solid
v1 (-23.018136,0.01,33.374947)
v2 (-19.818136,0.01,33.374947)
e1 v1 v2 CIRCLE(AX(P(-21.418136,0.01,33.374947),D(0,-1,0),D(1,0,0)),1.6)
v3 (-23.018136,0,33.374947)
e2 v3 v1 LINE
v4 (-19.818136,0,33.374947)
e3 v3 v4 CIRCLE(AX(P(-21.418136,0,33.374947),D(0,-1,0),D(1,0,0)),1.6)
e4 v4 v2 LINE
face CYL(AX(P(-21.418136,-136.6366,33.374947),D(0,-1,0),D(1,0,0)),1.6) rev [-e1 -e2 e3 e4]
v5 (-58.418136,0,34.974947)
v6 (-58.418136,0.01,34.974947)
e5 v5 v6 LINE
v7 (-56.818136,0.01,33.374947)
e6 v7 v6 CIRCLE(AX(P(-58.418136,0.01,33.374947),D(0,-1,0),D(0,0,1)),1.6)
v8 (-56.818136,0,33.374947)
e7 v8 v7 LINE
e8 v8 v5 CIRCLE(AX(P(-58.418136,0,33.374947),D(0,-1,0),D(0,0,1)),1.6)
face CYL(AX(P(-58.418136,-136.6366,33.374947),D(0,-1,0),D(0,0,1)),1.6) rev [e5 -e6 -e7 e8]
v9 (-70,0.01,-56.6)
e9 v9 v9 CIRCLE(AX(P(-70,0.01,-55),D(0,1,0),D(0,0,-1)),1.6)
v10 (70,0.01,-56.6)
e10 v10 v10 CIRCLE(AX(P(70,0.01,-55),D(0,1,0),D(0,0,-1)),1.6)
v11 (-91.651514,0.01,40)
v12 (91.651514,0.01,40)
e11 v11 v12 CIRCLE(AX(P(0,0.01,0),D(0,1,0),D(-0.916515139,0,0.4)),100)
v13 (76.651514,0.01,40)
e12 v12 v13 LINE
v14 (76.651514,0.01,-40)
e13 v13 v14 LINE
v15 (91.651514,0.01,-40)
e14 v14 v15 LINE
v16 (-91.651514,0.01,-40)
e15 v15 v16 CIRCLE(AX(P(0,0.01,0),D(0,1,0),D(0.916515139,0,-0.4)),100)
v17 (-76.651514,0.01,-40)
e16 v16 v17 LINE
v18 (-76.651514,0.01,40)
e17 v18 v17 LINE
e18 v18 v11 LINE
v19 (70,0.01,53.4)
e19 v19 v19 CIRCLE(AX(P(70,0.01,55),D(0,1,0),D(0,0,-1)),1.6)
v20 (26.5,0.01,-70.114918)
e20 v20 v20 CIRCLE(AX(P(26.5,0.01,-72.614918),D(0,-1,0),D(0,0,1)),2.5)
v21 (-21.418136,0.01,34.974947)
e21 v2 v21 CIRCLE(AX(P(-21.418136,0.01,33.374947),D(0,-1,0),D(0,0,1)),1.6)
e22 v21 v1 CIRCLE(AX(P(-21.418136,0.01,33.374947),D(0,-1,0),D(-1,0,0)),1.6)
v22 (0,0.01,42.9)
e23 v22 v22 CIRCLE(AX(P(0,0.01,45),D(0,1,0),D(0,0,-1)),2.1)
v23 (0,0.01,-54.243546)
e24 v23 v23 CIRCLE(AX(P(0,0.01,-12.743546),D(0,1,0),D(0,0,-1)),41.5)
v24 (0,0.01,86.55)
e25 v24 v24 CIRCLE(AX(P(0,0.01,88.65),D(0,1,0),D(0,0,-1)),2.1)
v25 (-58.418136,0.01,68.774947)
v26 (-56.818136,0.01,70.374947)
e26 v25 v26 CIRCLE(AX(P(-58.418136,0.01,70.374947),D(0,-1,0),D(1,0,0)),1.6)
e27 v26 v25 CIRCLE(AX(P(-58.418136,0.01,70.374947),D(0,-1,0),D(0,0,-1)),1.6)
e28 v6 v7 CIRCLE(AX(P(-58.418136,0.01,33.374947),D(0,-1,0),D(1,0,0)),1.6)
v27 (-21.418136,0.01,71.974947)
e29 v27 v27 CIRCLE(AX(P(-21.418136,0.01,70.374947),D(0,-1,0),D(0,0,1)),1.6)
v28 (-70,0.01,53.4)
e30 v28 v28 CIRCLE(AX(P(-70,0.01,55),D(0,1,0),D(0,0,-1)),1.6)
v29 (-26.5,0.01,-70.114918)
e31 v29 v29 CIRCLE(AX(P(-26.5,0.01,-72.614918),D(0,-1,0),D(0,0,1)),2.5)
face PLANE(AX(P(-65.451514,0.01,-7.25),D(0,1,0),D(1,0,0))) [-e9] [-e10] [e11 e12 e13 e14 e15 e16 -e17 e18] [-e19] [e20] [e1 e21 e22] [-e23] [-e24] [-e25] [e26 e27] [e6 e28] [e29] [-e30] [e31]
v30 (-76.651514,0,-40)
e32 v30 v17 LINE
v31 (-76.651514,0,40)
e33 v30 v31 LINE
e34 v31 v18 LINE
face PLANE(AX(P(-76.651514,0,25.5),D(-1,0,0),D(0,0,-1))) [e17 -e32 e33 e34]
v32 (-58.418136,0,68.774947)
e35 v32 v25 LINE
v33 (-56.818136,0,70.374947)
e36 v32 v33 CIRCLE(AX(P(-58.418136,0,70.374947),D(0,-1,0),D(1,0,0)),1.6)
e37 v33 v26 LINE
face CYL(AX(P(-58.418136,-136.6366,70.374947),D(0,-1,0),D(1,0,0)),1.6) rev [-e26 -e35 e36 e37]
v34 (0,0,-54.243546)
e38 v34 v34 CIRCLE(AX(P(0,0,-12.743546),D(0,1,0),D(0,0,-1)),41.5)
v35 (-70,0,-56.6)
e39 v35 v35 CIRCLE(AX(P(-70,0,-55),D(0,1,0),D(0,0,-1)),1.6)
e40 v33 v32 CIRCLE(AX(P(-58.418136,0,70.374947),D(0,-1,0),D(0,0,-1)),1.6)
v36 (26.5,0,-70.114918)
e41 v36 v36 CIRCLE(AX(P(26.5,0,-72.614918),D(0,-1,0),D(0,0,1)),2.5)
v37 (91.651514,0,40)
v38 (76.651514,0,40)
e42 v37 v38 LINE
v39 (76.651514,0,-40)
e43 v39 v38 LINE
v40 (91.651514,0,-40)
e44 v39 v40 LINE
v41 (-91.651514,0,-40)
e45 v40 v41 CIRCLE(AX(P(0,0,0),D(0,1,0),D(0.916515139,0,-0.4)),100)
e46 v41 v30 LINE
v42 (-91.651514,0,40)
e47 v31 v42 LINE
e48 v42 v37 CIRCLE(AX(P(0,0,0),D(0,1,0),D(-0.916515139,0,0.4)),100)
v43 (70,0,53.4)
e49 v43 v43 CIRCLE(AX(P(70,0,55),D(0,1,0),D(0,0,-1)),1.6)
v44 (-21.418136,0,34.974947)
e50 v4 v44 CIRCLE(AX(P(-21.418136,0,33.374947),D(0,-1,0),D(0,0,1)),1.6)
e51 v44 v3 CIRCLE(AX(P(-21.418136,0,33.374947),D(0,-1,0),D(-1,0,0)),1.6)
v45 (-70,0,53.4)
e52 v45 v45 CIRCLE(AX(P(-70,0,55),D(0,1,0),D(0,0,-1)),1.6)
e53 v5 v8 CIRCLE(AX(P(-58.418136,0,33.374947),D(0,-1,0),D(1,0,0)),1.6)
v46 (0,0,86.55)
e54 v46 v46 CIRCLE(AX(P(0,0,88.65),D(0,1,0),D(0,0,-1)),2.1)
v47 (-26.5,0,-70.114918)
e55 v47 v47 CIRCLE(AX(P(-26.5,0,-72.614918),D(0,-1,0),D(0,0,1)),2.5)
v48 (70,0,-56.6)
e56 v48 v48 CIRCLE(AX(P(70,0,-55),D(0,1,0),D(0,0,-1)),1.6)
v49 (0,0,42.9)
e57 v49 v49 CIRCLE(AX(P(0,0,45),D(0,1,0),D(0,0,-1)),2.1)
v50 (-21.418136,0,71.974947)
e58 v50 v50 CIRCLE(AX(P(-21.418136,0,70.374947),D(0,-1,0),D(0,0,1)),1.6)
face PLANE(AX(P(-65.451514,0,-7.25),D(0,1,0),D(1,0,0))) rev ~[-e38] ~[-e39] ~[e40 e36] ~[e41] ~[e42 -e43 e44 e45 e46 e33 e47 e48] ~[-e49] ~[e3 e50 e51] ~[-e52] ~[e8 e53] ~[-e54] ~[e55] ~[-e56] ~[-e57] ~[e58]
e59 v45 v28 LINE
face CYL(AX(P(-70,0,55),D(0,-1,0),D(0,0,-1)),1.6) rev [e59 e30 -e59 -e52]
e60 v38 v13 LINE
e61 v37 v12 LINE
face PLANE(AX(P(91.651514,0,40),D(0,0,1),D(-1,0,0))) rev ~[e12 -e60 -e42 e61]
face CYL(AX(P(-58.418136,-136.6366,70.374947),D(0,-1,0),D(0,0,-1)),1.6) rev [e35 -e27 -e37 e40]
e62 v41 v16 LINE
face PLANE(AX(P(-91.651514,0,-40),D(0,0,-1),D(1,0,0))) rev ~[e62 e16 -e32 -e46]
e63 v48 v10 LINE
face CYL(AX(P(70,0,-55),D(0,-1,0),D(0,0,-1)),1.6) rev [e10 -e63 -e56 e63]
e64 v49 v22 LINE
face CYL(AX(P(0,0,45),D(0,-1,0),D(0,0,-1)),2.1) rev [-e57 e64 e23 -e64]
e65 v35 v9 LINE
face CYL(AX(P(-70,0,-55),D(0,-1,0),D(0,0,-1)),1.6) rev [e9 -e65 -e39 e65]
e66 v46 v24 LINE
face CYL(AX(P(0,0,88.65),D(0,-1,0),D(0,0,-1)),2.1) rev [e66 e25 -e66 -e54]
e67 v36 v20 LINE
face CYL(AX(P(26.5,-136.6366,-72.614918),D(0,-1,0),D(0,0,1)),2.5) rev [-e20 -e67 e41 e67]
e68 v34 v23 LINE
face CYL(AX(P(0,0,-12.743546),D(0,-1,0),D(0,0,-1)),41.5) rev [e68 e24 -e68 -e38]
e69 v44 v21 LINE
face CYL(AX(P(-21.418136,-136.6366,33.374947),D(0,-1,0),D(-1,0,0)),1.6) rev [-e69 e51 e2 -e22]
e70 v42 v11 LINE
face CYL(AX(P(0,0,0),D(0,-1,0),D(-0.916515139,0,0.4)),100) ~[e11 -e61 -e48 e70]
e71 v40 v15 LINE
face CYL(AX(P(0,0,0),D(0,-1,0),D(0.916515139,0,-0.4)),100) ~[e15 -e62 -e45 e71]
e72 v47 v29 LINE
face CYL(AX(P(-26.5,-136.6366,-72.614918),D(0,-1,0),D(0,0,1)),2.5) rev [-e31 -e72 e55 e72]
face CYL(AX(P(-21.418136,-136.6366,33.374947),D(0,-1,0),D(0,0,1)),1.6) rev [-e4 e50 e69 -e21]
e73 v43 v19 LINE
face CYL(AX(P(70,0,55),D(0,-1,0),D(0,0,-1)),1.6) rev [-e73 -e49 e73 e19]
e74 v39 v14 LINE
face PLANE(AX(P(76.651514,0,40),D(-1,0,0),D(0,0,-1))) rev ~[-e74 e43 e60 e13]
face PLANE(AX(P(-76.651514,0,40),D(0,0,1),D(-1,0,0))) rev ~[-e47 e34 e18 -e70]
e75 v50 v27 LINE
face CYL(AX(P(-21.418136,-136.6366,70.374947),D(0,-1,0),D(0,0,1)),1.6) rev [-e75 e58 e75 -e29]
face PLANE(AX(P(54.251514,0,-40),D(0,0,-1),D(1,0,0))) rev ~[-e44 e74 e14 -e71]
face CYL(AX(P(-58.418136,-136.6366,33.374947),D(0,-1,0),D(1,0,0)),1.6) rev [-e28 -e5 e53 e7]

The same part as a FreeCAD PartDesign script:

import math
import FreeCAD as App
import Part
import Sketcher
from FreeCAD import Vector
Q = App.Units.Quantity

doc = App.newDocument("Part")
params = doc.addObject("Spreadsheet::Sheet", "Params")
for row, (alias, value) in enumerate([
    ("sketch1_diameter", "83 mm"),
    ("sketch1_radius", "100 mm"),
    ("sketch1_diameter2", "3.2 mm"),
    ("sketch1_diameter3", "4.2 mm"),
    ("sketch1_width", "15 mm"),
    ("pad1_length", "0.01 mm"),
    ("sketch2_diameter", "3.2 mm"),
    ("sketch3_diameter", "5 mm"),
], start=1):
    params.set(f"A{row}", alias)
    params.set(f"B{row}", "=" + value)
    params.setAlias(f"B{row}", alias)

body = doc.addObject("PartDesign::Body", "Body")

sketch1 = body.newObject("Sketcher::SketchObject", "Sketch")
sketch1.AttachmentSupport = (doc.getObject("XZ_Plane"), [""])
sketch1.MapMode = "FlatFace"
sketch1.addGeometry(Part.LineSegment(Vector(76.7, -40, 0), Vector(91.7, -40, 0)), False)
sketch1.addGeometry(Part.ArcOfCircle(Part.Circle(Vector(0, 0, 0), Vector(0, 0, 1), 100), math.radians(-156), math.radians(-24)), False)
sketch1.addGeometry(Part.LineSegment(Vector(-91.7, -40, 0), Vector(-76.7, -40, 0)), False)
sketch1.addGeometry(Part.LineSegment(Vector(-76.7, -40, 0), Vector(-76.7, 40, 0)), False)
sketch1.addGeometry(Part.LineSegment(Vector(-76.7, 40, 0), Vector(-91.7, 40, 0)), False)
sketch1.addGeometry(Part.ArcOfCircle(Part.Circle(Vector(0, 0, 0), Vector(0, 0, 1), 100), math.radians(24), math.radians(156)), False)
sketch1.addGeometry(Part.LineSegment(Vector(91.7, 40, 0), Vector(76.7, 40, 0)), False)
sketch1.addGeometry(Part.LineSegment(Vector(76.7, 40, 0), Vector(76.7, -40, 0)), False)
sketch1.addGeometry(Part.Circle(Vector(-70, 55, 0), Vector(0, 0, 1), 1.6), False)
sketch1.addGeometry(Part.Circle(Vector(0, 88.7, 0), Vector(0, 0, 1), 2.1), False)
sketch1.addGeometry(Part.Circle(Vector(70, 55, 0), Vector(0, 0, 1), 1.6), False)
sketch1.addGeometry(Part.Circle(Vector(0, 45, 0), Vector(0, 0, 1), 2.1), False)
sketch1.addGeometry(Part.Circle(Vector(-70, -55, 0), Vector(0, 0, 1), 1.6), False)
sketch1.addGeometry(Part.Circle(Vector(0, -12.7, 0), Vector(0, 0, 1), 41.5), False)
sketch1.addGeometry(Part.Circle(Vector(70, -55, 0), Vector(0, 0, 1), 1.6), False)
sketch1.addConstraint(Sketcher.Constraint("Coincident", 0, 2, 1, 2))
sketch1.addConstraint(Sketcher.Constraint("Coincident", 1, 1, 2, 1))
sketch1.addConstraint(Sketcher.Constraint("Coincident", 2, 2, 3, 1))
sketch1.addConstraint(Sketcher.Constraint("Coincident", 3, 2, 4, 1))
sketch1.addConstraint(Sketcher.Constraint("Coincident", 4, 2, 5, 2))
sketch1.addConstraint(Sketcher.Constraint("Coincident", 5, 1, 6, 1))
sketch1.addConstraint(Sketcher.Constraint("Coincident", 6, 2, 7, 1))
sketch1.addConstraint(Sketcher.Constraint("Coincident", 7, 2, 0, 1))
sketch1.addConstraint(Sketcher.Constraint("Horizontal", 0))
sketch1.addConstraint(Sketcher.Constraint("Horizontal", 2))
sketch1.addConstraint(Sketcher.Constraint("Vertical", 3))
sketch1.addConstraint(Sketcher.Constraint("Horizontal", 4))
sketch1.addConstraint(Sketcher.Constraint("Horizontal", 6))
sketch1.addConstraint(Sketcher.Constraint("Vertical", 7))
sketch1.addConstraint(Sketcher.Constraint("Coincident", 1, 3, -1, 1))
sketch1.addConstraint(Sketcher.Constraint("Coincident", 5, 3, -1, 1))
sketch1.addConstraint(Sketcher.Constraint("Equal", 1, 5))
sketch1.addConstraint(Sketcher.Constraint("Equal", 8, 10))
sketch1.addConstraint(Sketcher.Constraint("Equal", 9, 11))
sketch1.addConstraint(Sketcher.Constraint("Equal", 10, 12))
sketch1.addConstraint(Sketcher.Constraint("Equal", 12, 14))
sketch1.addConstraint(Sketcher.Constraint("Symmetric", 10, 3, 12, 3, -1, 1))
sketch1.addConstraint(Sketcher.Constraint("Symmetric", 8, 3, 14, 3, -1, 1))
sketch1.addConstraint(Sketcher.Constraint("Symmetric", 2, 2, 6, 2, -1, 1))
sketch1.addConstraint(Sketcher.Constraint("Symmetric", 8, 3, 10, 3, -2))
sketch1.addConstraint(Sketcher.Constraint("PointOnObject", 9, 3, -2))
sketch1.addConstraint(Sketcher.Constraint("PointOnObject", 11, 3, -2))
sketch1.addConstraint(Sketcher.Constraint("PointOnObject", 13, 3, -2))
sketch1.addConstraint(Sketcher.Constraint("Horizontal", 0, 2, 1, 1))
sketch1.addConstraint(Sketcher.Constraint("Horizontal", 4, 2, 5, 1))
sketch1.addConstraint(Sketcher.Constraint("Diameter", 13, Q("83 mm")))
sketch1.addConstraint(Sketcher.Constraint("Radius", 1, Q("100 mm")))
sketch1.addConstraint(Sketcher.Constraint("Diameter", 8, Q("3.2 mm")))
sketch1.addConstraint(Sketcher.Constraint("Diameter", 9, Q("4.2 mm")))
sketch1.addConstraint(Sketcher.Constraint("DistanceX", 0, 1, 0, 2, Q("15 mm")))
sketch1.addConstraint(Sketcher.Constraint("DistanceY", 3, 1, 3, 2, Q("80 mm")))
sketch1.addConstraint(Sketcher.Constraint("DistanceX", 8, 3, -1, 1, Q("70 mm")))
sketch1.addConstraint(Sketcher.Constraint("DistanceY", -1, 1, 8, 3, Q("55 mm")))
sketch1.addConstraint(Sketcher.Constraint("DistanceY", -1, 1, 11, 3, Q("45 mm")))
sketch1.addConstraint(Sketcher.Constraint("DistanceY", -1, 1, 9, 3, Q("88.65 mm")))
sketch1.addConstraint(Sketcher.Constraint("DistanceY", 13, 3, -1, 1, Q("12.743546 mm")))
sketch1.setExpression("Constraints[30]", "Params.sketch1_diameter")
sketch1.setExpression("Constraints[31]", "Params.sketch1_radius")
sketch1.setExpression("Constraints[32]", "Params.sketch1_diameter2")
sketch1.setExpression("Constraints[33]", "Params.sketch1_diameter3")
sketch1.setExpression("Constraints[34]", "Params.sketch1_width")
pad1 = body.newObject("PartDesign::Pad", "Pad")
pad1.Profile = sketch1
pad1.setExpression("Length", "Params.pad1_length")
pad1.Reversed = True

sketch2 = body.newObject("Sketcher::SketchObject", "Sketch001")
sketch2.AttachmentSupport = (doc.getObject("XZ_Plane"), [""])
sketch2.MapMode = "FlatFace"
sketch2.AttachmentOffset = App.Placement(Vector(0, 0, -0.01), App.Rotation())
sketch2.addGeometry(Part.ArcOfCircle(Part.Circle(Vector(-58.4, 33.4, 0), Vector(0, 0, 1), 1.6), math.radians(90), math.radians(360)), False)
sketch2.addGeometry(Part.ArcOfCircle(Part.Circle(Vector(-58.4, 33.4, 0), Vector(0, 0, 1), 1.6), math.radians(0), math.radians(90)), False)
sketch2.addGeometry(Part.ArcOfCircle(Part.Circle(Vector(-21.4, 33.4, 0), Vector(0, 0, 1), 1.6), math.radians(180), math.radians(360)), False)
sketch2.addGeometry(Part.ArcOfCircle(Part.Circle(Vector(-21.4, 33.4, 0), Vector(0, 0, 1), 1.6), math.radians(90), math.radians(180)), False)
sketch2.addGeometry(Part.ArcOfCircle(Part.Circle(Vector(-21.4, 33.4, 0), Vector(0, 0, 1), 1.6), math.radians(0), math.radians(90)), False)
sketch2.addGeometry(Part.ArcOfCircle(Part.Circle(Vector(-58.4, 70.4, 0), Vector(0, 0, 1), 1.6), math.radians(-90), math.radians(0)), False)
sketch2.addGeometry(Part.ArcOfCircle(Part.Circle(Vector(-58.4, 70.4, 0), Vector(0, 0, 1), 1.6), math.radians(0), math.radians(270)), False)
sketch2.addGeometry(Part.Circle(Vector(-21.4, 70.4, 0), Vector(0, 0, 1), 1.6), False)
sketch2.addConstraint(Sketcher.Constraint("Tangent", 0, 1, 1, 2))
sketch2.addConstraint(Sketcher.Constraint("Coincident", 1, 1, 0, 2))
sketch2.addConstraint(Sketcher.Constraint("Tangent", 2, 1, 3, 2))
sketch2.addConstraint(Sketcher.Constraint("Tangent", 3, 1, 4, 2))
sketch2.addConstraint(Sketcher.Constraint("Tangent", 4, 1, 2, 2))
sketch2.addConstraint(Sketcher.Constraint("Tangent", 5, 1, 6, 2))
sketch2.addConstraint(Sketcher.Constraint("Coincident", 6, 1, 5, 2))
sketch2.addConstraint(Sketcher.Constraint("Equal", 1, 2))
sketch2.addConstraint(Sketcher.Constraint("Equal", 4, 5))
sketch2.addConstraint(Sketcher.Constraint("Equal", 6, 7))
sketch2.addConstraint(Sketcher.Constraint("Horizontal", 1, 3, 2, 3))
sketch2.addConstraint(Sketcher.Constraint("Horizontal", 6, 3, 7, 3))
sketch2.addConstraint(Sketcher.Constraint("Horizontal", 4, 3, 1, 1))
sketch2.addConstraint(Sketcher.Constraint("Horizontal", 1, 1, 2, 1))
sketch2.addConstraint(Sketcher.Constraint("Horizontal", 2, 1, 4, 1))
sketch2.addConstraint(Sketcher.Constraint("Horizontal", 7, 3, 6, 1))
sketch2.addConstraint(Sketcher.Constraint("Vertical", 1, 3, 5, 3))
sketch2.addConstraint(Sketcher.Constraint("Vertical", 4, 3, 7, 3))
sketch2.addConstraint(Sketcher.Constraint("Vertical", 6, 3, 0, 1))
sketch2.addConstraint(Sketcher.Constraint("Vertical", 7, 3, 3, 1))
sketch2.addConstraint(Sketcher.Constraint("Vertical", 0, 1, 5, 1))
sketch2.addConstraint(Sketcher.Constraint("Diameter", 7, Q("3.2 mm")))
sketch2.addConstraint(Sketcher.Constraint("DistanceX", 0, 3, 2, 3, Q("37 mm")))
sketch2.addConstraint(Sketcher.Constraint("DistanceY", 0, 3, 5, 3, Q("37 mm")))
sketch2.addConstraint(Sketcher.Constraint("DistanceX", 0, 3, -1, 1, Q("58.418136 mm")))
sketch2.addConstraint(Sketcher.Constraint("DistanceY", -1, 1, 0, 3, Q("33.374947 mm")))
sketch2.setExpression("Constraints[21]", "Params.sketch2_diameter")
pocket1 = body.newObject("PartDesign::Pocket", "Pocket")
pocket1.Profile = sketch2
pocket1.Type = "ThroughAll"
pocket1.Midplane = True

sketch3 = body.newObject("Sketcher::SketchObject", "Sketch002")
sketch3.AttachmentSupport = (doc.getObject("XZ_Plane"), [""])
sketch3.MapMode = "FlatFace"
sketch3.AttachmentOffset = App.Placement(Vector(0, 0, -0.01), App.Rotation())
sketch3.addGeometry(Part.Circle(Vector(-26.5, -72.6, 0), Vector(0, 0, 1), 2.5), False)
sketch3.addGeometry(Part.Circle(Vector(26.5, -72.6, 0), Vector(0, 0, 1), 2.5), False)
sketch3.addConstraint(Sketcher.Constraint("Equal", 0, 1))
sketch3.addConstraint(Sketcher.Constraint("Symmetric", 0, 3, 1, 3, -2))
sketch3.addConstraint(Sketcher.Constraint("Diameter", 0, Q("5 mm")))
sketch3.addConstraint(Sketcher.Constraint("DistanceX", 0, 3, 1, 3, Q("53 mm")))
sketch3.addConstraint(Sketcher.Constraint("DistanceY", 0, 3, -1, 1, Q("72.614918 mm")))
sketch3.setExpression("Constraints[2]", "Params.sketch3_diameter")
pocket2 = body.newObject("PartDesign::Pocket", "Pocket001")
pocket2.Profile = sketch3
pocket2.Type = "ThroughAll"
pocket2.Midplane = True

doc.recompute()
